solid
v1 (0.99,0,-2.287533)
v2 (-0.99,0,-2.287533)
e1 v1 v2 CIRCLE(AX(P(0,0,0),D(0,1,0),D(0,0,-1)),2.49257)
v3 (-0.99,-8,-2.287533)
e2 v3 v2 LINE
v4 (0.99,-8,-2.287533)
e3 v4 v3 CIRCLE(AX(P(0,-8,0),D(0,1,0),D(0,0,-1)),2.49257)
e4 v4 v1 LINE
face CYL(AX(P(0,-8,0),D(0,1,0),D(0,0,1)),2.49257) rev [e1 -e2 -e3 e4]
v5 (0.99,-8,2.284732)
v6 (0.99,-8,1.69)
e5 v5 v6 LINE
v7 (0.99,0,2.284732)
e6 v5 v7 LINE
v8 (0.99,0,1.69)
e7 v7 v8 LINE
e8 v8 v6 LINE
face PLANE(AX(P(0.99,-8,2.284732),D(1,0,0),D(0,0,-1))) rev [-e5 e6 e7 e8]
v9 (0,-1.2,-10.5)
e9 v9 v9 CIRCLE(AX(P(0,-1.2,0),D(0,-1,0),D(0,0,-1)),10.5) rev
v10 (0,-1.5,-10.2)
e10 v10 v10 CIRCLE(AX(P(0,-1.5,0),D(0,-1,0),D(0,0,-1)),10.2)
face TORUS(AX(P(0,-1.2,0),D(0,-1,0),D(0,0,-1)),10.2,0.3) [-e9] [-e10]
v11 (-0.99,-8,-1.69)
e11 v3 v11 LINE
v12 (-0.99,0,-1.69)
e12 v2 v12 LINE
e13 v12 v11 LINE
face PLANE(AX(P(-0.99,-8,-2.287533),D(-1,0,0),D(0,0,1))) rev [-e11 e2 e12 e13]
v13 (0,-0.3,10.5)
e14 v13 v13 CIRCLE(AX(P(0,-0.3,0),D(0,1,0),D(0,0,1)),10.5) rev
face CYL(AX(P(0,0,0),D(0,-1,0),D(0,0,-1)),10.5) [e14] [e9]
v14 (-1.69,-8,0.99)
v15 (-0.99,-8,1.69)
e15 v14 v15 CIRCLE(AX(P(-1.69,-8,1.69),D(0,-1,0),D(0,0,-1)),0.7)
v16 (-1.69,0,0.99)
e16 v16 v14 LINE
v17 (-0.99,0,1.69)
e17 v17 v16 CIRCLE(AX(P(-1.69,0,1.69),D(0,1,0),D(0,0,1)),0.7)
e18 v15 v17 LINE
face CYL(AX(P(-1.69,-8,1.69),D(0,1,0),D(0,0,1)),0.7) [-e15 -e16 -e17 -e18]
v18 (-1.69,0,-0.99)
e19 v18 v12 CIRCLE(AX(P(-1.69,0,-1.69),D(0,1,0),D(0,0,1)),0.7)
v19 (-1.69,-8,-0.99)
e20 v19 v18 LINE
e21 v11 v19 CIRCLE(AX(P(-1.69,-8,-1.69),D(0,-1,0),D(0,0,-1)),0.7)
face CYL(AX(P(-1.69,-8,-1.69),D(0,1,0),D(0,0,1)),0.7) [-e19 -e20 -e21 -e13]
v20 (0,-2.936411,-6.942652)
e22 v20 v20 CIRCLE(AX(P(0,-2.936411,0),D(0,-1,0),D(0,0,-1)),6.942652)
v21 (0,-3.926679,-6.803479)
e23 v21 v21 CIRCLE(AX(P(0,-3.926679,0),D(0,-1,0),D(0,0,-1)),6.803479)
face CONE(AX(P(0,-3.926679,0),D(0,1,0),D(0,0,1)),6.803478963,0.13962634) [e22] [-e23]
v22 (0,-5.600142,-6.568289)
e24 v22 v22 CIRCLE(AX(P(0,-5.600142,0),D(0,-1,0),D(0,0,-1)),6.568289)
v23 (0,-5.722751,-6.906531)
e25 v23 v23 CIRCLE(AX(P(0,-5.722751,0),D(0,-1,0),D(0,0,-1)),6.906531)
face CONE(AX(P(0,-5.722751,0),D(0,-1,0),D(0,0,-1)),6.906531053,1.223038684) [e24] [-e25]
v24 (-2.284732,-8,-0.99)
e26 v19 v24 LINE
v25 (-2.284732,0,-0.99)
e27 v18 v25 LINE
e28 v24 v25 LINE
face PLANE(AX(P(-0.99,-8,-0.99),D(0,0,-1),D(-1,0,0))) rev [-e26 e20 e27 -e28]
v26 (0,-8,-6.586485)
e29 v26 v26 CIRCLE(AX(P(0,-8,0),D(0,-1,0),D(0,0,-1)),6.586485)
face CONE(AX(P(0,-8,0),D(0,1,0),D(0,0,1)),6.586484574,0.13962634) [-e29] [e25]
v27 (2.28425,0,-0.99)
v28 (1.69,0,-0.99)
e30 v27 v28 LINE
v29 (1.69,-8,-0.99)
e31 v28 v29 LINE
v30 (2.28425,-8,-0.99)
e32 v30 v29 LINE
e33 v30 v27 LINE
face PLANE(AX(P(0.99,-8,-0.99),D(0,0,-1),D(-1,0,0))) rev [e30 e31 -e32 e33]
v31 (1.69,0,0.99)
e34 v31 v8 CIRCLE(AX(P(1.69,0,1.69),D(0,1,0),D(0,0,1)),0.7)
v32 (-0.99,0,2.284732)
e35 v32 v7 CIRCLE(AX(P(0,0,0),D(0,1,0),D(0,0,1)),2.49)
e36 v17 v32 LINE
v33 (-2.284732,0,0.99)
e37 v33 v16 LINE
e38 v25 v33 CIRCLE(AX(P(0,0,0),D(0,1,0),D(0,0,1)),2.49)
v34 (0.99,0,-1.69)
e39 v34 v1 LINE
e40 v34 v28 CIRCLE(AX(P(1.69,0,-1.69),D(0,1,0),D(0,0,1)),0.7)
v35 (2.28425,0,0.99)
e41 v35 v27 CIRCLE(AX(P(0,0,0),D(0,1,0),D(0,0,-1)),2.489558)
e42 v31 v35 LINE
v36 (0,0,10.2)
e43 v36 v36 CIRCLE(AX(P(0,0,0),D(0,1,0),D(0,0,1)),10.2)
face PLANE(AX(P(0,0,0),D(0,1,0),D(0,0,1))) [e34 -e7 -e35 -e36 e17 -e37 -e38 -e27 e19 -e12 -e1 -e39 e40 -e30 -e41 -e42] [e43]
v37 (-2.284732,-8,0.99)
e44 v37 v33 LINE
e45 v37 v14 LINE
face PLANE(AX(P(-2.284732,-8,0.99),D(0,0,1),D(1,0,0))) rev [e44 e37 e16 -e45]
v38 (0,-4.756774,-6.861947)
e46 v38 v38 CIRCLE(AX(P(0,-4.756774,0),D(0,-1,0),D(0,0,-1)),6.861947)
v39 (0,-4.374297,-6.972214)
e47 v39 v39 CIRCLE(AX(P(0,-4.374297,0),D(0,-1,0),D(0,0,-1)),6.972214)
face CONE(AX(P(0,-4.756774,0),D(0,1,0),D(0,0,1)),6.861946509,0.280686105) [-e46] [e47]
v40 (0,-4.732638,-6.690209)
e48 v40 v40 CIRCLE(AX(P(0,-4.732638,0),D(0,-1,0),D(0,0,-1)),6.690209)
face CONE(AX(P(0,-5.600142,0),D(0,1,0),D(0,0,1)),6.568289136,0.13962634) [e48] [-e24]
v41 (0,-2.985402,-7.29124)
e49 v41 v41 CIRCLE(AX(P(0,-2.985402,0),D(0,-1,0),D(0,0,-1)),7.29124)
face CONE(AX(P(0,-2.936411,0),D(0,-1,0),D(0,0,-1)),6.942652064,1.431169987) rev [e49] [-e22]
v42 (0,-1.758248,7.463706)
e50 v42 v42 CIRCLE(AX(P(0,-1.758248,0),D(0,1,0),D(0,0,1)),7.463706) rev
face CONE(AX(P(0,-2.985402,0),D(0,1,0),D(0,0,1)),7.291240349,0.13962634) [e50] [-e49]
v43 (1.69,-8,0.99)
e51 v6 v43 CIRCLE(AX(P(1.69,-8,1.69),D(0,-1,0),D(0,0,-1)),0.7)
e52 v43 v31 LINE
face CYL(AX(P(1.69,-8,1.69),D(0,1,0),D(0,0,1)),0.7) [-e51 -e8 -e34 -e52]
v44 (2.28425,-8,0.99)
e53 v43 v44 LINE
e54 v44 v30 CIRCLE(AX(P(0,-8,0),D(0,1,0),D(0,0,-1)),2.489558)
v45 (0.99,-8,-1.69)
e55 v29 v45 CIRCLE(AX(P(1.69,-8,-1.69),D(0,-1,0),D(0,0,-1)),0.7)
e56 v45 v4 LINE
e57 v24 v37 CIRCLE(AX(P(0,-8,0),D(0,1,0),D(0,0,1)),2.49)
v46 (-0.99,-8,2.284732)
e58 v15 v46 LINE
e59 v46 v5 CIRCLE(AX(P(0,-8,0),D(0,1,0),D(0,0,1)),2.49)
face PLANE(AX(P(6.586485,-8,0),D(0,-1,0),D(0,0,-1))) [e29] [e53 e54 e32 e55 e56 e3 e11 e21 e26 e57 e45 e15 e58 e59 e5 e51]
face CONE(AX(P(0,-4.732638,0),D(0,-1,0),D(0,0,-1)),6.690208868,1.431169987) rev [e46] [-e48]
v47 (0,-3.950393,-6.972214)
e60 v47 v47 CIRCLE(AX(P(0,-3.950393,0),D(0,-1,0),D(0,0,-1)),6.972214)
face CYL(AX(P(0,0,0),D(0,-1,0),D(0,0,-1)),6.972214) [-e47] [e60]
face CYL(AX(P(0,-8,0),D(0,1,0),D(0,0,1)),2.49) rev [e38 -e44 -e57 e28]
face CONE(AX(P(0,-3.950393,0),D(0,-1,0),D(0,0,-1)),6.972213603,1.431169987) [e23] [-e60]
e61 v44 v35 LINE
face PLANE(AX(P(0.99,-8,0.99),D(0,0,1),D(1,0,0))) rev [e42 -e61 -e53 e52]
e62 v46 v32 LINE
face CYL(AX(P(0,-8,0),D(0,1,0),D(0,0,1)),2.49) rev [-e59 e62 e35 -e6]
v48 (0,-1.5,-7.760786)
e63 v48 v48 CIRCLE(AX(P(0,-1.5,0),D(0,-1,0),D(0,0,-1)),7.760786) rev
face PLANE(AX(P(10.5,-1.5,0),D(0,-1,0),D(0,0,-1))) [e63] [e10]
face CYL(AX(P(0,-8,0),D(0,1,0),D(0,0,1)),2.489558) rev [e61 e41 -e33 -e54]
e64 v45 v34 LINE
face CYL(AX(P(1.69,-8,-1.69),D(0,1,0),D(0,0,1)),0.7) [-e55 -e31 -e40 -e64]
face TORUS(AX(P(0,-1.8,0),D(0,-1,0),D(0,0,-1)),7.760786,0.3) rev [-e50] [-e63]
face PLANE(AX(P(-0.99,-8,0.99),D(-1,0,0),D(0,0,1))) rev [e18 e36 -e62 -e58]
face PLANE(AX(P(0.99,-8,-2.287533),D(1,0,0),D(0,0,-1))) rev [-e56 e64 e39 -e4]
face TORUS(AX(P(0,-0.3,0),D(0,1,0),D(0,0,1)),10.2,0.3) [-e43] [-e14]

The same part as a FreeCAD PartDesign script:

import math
import FreeCAD as App
import Part
import Sketcher
Q = App.Units.Quantity


def edges_at(feature, points):
    """Names of the edges that pass closest to the given points."""
    edges = feature.Shape.Edges
    near = lambda p: min(range(len(edges)), key=lambda i: edges[i].distToShape(Part.Vertex(*p))[0])
    return sorted({f"Edge{near(p) + 1}" for p in points})


def add_polygon(sketch, points):
    """Adds a closed chain of lines whose ends are joined by coincident constraints."""
    first, n = sketch.GeometryCount, len(points)
    for a, b in zip(points, points[1:] + points[:1]):
        sketch.addGeometry(Part.LineSegment(App.Vector(*a, 0), App.Vector(*b, 0)), False)
    for i in range(n):
        sketch.addConstraint(Sketcher.Constraint("Coincident", first + i, 2, first + (i + 1) % n, 1))

doc = App.newDocument("Part")
body = doc.addObject("PartDesign::Body", "Body")

sketch1 = doc.addObject("Sketcher::SketchObject", "Sketch")
body.addObject(sketch1)
sketch1.AttachmentSupport = (doc.XY_Plane, [""])
sketch1.MapMode = "FlatFace"
add_polygon(sketch1, [(10.5, 0), (0, 0), (0, -8), (6.59, -8), (6.91, -5.72), (6.57, -5.6), (6.69, -4.73), (6.86, -4.76), (6.97, -4.37), (6.97, -3.95), (6.8, -3.93), (6.94, -2.94), (7.29, -2.99), (7.5, -1.5), (10.5, -1.5)])
sketch1.addConstraint([
    Sketcher.Constraint("Horizontal", 0),
    Sketcher.Constraint("Vertical", 1),
    Sketcher.Constraint("Horizontal", 2),
    Sketcher.Constraint("Vertical", 8),
    Sketcher.Constraint("Horizontal", 13),
    Sketcher.Constraint("Vertical", 14),
    Sketcher.Constraint("Coincident", 0, 2, -1, 1),
    Sketcher.Constraint("Parallel", 3, 5),
    Sketcher.Constraint("Perpendicular", 5, 6),
    Sketcher.Constraint("Parallel", 6, 9),
    Sketcher.Constraint("Perpendicular", 9, 10),
    Sketcher.Constraint("Perpendicular", 10, 11),
    Sketcher.Constraint("Perpendicular", 11, 12),
    Sketcher.Constraint("DistanceX", 13, 1, 13, 2, Q("3 mm")),
    Sketcher.Constraint("DistanceY", 1, 2, 1, 1, Q("8 mm")),
    Sketcher.Constraint("Angle", 3, Q("82 deg")),
    Sketcher.Constraint("Distance", 10, Q("1 mm")),
    Sketcher.Constraint("DistanceX", 0, 2, 0, 1, Q("10.5 mm")),
    Sketcher.Constraint("DistanceY", 14, 1, 14, 2, Q("1.5 mm")),
    Sketcher.Constraint("Distance", 12, Q("1.5 mm")),
    Sketcher.Constraint("Distance", 3, Q("2.299629 mm")),
    Sketcher.Constraint("Distance", 4, Q("0.359779 mm")),
    Sketcher.Constraint("Distance", 5, Q("0.876029 mm")),
    Sketcher.Constraint("DistanceX", 2, 1, 2, 2, Q("6.586485 mm")),
    Sketcher.Constraint("DistanceY", 8, 1, 8, 2, Q("0.423904 mm")),
    Sketcher.Constraint("DistanceX", -1, 1, 4, 2, Q("6.568289 mm")),
    Sketcher.Constraint("DistanceX", -1, 1, 9, 2, Q("6.803479 mm")),
    Sketcher.Constraint("DistanceX", 2, 2, 6, 2, Q("0.275462 mm")),
    Sketcher.Constraint("DistanceY", 5, 2, 7, 2, Q("0.358341 mm")),
])
revolution = doc.addObject("PartDesign::Revolution", "Revolution")
body.addObject(revolution)
revolution.Profile = sketch1
revolution.ReferenceAxis = (sketch1, ["V_Axis"])
revolution.Angle = 360

sketch2 = doc.addObject("Sketcher::SketchObject", "Sketch001")
body.addObject(sketch2)
sketch2.AttachmentSupport = (doc.XZ_Plane, [""])
sketch2.MapMode = "FlatFace"
sketch2.addGeometry([
    Part.LineSegment(App.Vector(-1, -1, 0), App.Vector(-2.3, -1, 0)),
    Part.ArcOfCircle(Part.Circle(App.Vector(0, 0, 0), App.Vector(0, 0, 1), 2.5), math.radians(157), math.radians(203)),
    Part.LineSegment(App.Vector(-2.3, 1, 0), App.Vector(-1, 1, 0)),
    Part.LineSegment(App.Vector(-1, 1, 0), App.Vector(-1, 2.3, 0)),
    Part.ArcOfCircle(Part.Circle(App.Vector(0, 0, 0), App.Vector(0, 0, 1), 2.5), math.radians(67), math.radians(113)),
    Part.LineSegment(App.Vector(1, 2.3, 0), App.Vector(1, 1, 0)),
    Part.LineSegment(App.Vector(1, 1, 0), App.Vector(2.3, 1, 0)),
    Part.ArcOfCircle(Part.Circle(App.Vector(0, 0, 0), App.Vector(0, 0, 1), 2.5), math.radians(-23), math.radians(23)),
    Part.LineSegment(App.Vector(2.3, -1, 0), App.Vector(1, -1, 0)),
    Part.LineSegment(App.Vector(1, -1, 0), App.Vector(1, -2.3, 0)),
    Part.ArcOfCircle(Part.Circle(App.Vector(0, 0, 0), App.Vector(0, 0, 1), 2.5), math.radians(-113), math.radians(-67)),
    Part.LineSegment(App.Vector(-1, -2.3, 0), App.Vector(-1, -1, 0)),
], False)
sketch2.addConstraint([
    Sketcher.Constraint("Coincident", 0, 2, 1, 2),
    Sketcher.Constraint("Coincident", 1, 1, 2, 1),
    Sketcher.Constraint("Coincident", 2, 2, 3, 1),
    Sketcher.Constraint("Coincident", 3, 2, 4, 2),
    Sketcher.Constraint("Coincident", 4, 1, 5, 1),
    Sketcher.Constraint("Coincident", 5, 2, 6, 1),
    Sketcher.Constraint("Coincident", 6, 2, 7, 2),
    Sketcher.Constraint("Coincident", 7, 1, 8, 1),
    Sketcher.Constraint("Coincident", 8, 2, 9, 1),
    Sketcher.Constraint("Coincident", 9, 2, 10, 2),
    Sketcher.Constraint("Coincident", 10, 1, 11, 1),
    Sketcher.Constraint("Coincident", 11, 2, 0, 1),
    Sketcher.Constraint("Horizontal", 0),
    Sketcher.Constraint("Horizontal", 2),
    Sketcher.Constraint("Vertical", 3),
    Sketcher.Constraint("Vertical", 5),
    Sketcher.Constraint("Horizontal", 6),
    Sketcher.Constraint("Horizontal", 8),
    Sketcher.Constraint("Vertical", 9),
    Sketcher.Constraint("Vertical", 11),
    Sketcher.Constraint("Coincident", 1, 3, -1, 1),
    Sketcher.Constraint("Coincident", 4, 3, -1, 1),
    Sketcher.Constraint("Coincident", 7, 3, -1, 1),
    Sketcher.Constraint("Coincident", 10, 3, -1, 1),
    Sketcher.Constraint("Equal", 1, 4),
    Sketcher.Constraint("Symmetric", 2, 2, 8, 2, -1, 1),
    Sketcher.Constraint("Symmetric", 5, 2, 11, 2, -1, 1),
    Sketcher.Constraint("Symmetric", 2, 2, 5, 2, -2),
    Sketcher.Constraint("Equal", 2, 3),
    Sketcher.Constraint("Radius", 1, Q("2.49 mm")),
    Sketcher.Constraint("DistanceY", 0, 2, -1, 1, Q("0.99 mm")),
    Sketcher.Constraint("Radius", 10, Q("2.49257 mm")),
    Sketcher.Constraint("Radius", 7, Q("2.489558 mm")),
])
pocket1 = doc.addObject("PartDesign::Pocket", "Pocket")
body.addObject(pocket1)
pocket1.Profile = sketch2
pocket1.Type = "ThroughAll"
pocket1.Reversed = True
doc.recompute()

fillet = doc.addObject("PartDesign::Fillet", "Fillet")
body.addObject(fillet)
fillet.Base = (pocket1, edges_at(pocket1, [
    (-0.99, -4, -0.99),
    (0.99, -4, -0.99),
    (0.99, -4, 0.99),
    (-0.99, -4, 0.99),
]))
fillet.Radius = 0.7
doc.recompute()

fillet2 = doc.addObject("PartDesign::Fillet", "Fillet001")
body.addObject(fillet2)
fillet2.Base = (fillet, edges_at(fillet, [(0, -1.5, 7.5), (0, -1.5, 10.5), (0, 0, 10.5)]))
fillet2.Radius = 0.3

doc.recompute()
